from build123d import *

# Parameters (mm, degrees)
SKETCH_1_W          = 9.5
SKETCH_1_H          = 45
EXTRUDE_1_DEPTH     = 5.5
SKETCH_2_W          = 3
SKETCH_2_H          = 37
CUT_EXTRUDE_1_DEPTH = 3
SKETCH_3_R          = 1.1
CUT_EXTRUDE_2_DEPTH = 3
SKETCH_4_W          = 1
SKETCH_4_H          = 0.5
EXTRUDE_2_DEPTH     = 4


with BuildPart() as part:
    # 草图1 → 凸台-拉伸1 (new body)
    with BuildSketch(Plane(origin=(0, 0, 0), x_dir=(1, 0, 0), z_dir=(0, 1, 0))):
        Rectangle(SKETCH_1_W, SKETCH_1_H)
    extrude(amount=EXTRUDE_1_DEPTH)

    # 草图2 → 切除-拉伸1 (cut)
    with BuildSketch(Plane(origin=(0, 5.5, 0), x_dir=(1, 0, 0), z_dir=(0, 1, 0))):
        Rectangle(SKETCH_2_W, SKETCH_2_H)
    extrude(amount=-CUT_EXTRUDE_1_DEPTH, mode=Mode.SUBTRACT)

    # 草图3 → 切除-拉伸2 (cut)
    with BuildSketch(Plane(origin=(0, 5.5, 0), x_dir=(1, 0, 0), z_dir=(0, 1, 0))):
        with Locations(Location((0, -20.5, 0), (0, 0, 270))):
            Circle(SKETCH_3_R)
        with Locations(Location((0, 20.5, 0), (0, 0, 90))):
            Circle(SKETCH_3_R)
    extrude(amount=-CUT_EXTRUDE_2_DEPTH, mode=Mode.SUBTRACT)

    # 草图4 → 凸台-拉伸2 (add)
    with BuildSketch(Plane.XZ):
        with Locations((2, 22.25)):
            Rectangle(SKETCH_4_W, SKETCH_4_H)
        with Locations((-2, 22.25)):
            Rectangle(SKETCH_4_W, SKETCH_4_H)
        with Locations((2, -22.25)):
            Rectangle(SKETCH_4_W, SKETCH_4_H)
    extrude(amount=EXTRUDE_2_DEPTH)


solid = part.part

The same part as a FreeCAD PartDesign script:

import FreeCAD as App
import Part
import Sketcher
Q = App.Units.Quantity


def add_polygon(sketch, points):
    """Adds a closed chain of lines whose ends are joined by coincident constraints."""
    first, n = sketch.GeometryCount, len(points)
    for a, b in zip(points, points[1:] + points[:1]):
        sketch.addGeometry(Part.LineSegment(App.Vector(*a, 0), App.Vector(*b, 0)), False)
    for i in range(n):
        sketch.addConstraint(Sketcher.Constraint("Coincident", first + i, 2, first + (i + 1) % n, 1))

doc = App.newDocument("Part")
body = doc.addObject("PartDesign::Body", "Body")

sketch1 = doc.addObject("Sketcher::SketchObject", "Sketch")
body.addObject(sketch1)
sketch1.AttachmentSupport = (doc.XZ_Plane, [""])
sketch1.MapMode = "FlatFace"
add_polygon(sketch1, [(-5, -22), (-5, 22), (5, 22), (5, -22)])
sketch1.addConstraint(Sketcher.Constraint("Vertical", 0))
sketch1.addConstraint(Sketcher.Constraint("Horizontal", 1))
sketch1.addConstraint(Sketcher.Constraint("Vertical", 2))
sketch1.addConstraint(Sketcher.Constraint("Horizontal", 3))
sketch1.addConstraint(Sketcher.Constraint("Symmetric", 0, 2, 2, 2, -1, 1))
sketch1.addConstraint(Sketcher.Constraint("DistanceY", 0, 1, 0, 2, Q("45 mm")))
sketch1.addConstraint(Sketcher.Constraint("DistanceX", 1, 1, 1, 2, Q("9.5 mm")))
pad1 = doc.addObject("PartDesign::Pad", "Pad")
body.addObject(pad1)
pad1.Profile = sketch1
pad1.Length = 5.5
pad1.Reversed = True

sketch2 = doc.addObject("Sketcher::SketchObject", "Sketch001")
body.addObject(sketch2)
sketch2.AttachmentSupport = (doc.XZ_Plane, [""])
sketch2.MapMode = "FlatFace"
sketch2.AttachmentOffset = App.Placement(App.Vector(0, 0, -5.5), App.Rotation())
add_polygon(sketch2, [(-1.5, -18.5), (-1.5, 18.5), (1.5, 18.5), (1.5, -18.5)])
sketch2.addConstraint(Sketcher.Constraint("Vertical", 0))
sketch2.addConstraint(Sketcher.Constraint("Horizontal", 1))
sketch2.addConstraint(Sketcher.Constraint("Vertical", 2))
sketch2.addConstraint(Sketcher.Constraint("Horizontal", 3))
sketch2.addConstraint(Sketcher.Constraint("Symmetric", 0, 2, 2, 2, -1, 1))
sketch2.addConstraint(Sketcher.Constraint("DistanceX", 1, 1, 1, 2, Q("3 mm")))
sketch2.addConstraint(Sketcher.Constraint("DistanceY", 0, 1, 0, 2, Q("37 mm")))
pocket1 = doc.addObject("PartDesign::Pocket", "Pocket")
body.addObject(pocket1)
pocket1.Profile = sketch2
pocket1.Length = 3
pocket1.Reversed = True

sketch3 = doc.addObject("Sketcher::SketchObject", "Sketch002")
body.addObject(sketch3)
sketch3.AttachmentSupport = (doc.XZ_Plane, [""])
sketch3.MapMode = "FlatFace"
sketch3.AttachmentOffset = App.Placement(App.Vector(0, 0, -5.5), App.Rotation())
sketch3.addGeometry(Part.Circle(App.Vector(0, 20.5, 0), App.Vector(0, 0, 1), 1.1), False)
sketch3.addGeometry(Part.Circle(App.Vector(0, -20.5, 0), App.Vector(0, 0, 1), 1.1), False)
sketch3.addConstraint(Sketcher.Constraint("Equal", 0, 1))
sketch3.addConstraint(Sketcher.Constraint("Symmetric", 0, 3, 1, 3, -1, 1))
sketch3.addConstraint(Sketcher.Constraint("PointOnObject", 0, 3, -2))
sketch3.addConstraint(Sketcher.Constraint("Diameter", 0, Q("2.2 mm")))
sketch3.addConstraint(Sketcher.Constraint("DistanceY", 1, 3, 0, 3, Q("41 mm")))
pocket2 = doc.addObject("PartDesign::Pocket", "Pocket001")
body.addObject(pocket2)
pocket2.Profile = sketch3
pocket2.Length = 3
pocket2.Reversed = True

sketch4 = doc.addObject("Sketcher::SketchObject", "Sketch003")
body.addObject(sketch4)
sketch4.AttachmentSupport = (doc.XZ_Plane, [""])
sketch4.MapMode = "FlatFace"
add_polygon(sketch4, [(1.5, 22.5), (1.5, 22), (2.5, 22), (2.5, 22.5)])
add_polygon(sketch4, [(-2.5, 22.5), (-2.5, 22), (-1.5, 22), (-1.5, 22.5)])
add_polygon(sketch4, [(1.5, -22), (1.5, -22.5), (2.5, -22.5), (2.5, -22)])
sketch4.addConstraint(Sketcher.Constraint("Vertical", 0))
sketch4.addConstraint(Sketcher.Constraint("Horizontal", 1))
sketch4.addConstraint(Sketcher.Constraint("Vertical", 2))
sketch4.addConstraint(Sketcher.Constraint("Horizontal", 3))
sketch4.addConstraint(Sketcher.Constraint("Vertical", 4))
sketch4.addConstraint(Sketcher.Constraint("Horizontal", 5))
sketch4.addConstraint(Sketcher.Constraint("Vertical", 6))
sketch4.addConstraint(Sketcher.Constraint("Horizontal", 7))
sketch4.addConstraint(Sketcher.Constraint("Vertical", 8))
sketch4.addConstraint(Sketcher.Constraint("Horizontal", 9))
sketch4.addConstraint(Sketcher.Constraint("Vertical", 10))
sketch4.addConstraint(Sketcher.Constraint("Horizontal", 11))
sketch4.addConstraint(Sketcher.Constraint("Symmetric", 6, 2, 8, 2, -1, 1))
sketch4.addConstraint(Sketcher.Constraint("Symmetric", 4, 2, 10, 2, -1, 1))
sketch4.addConstraint(Sketcher.Constraint("Symmetric", 1, 2, 4, 2, -2))
sketch4.addConstraint(Sketcher.Constraint("Symmetric", 3, 2, 6, 2, -2))
sketch4.addConstraint(Sketcher.Constraint("DistanceX", 1, 1, 1, 2, Q("1 mm")))
sketch4.addConstraint(Sketcher.Constraint("DistanceY", 0, 2, 0, 1, Q("0.5 mm")))
sketch4.addConstraint(Sketcher.Constraint("DistanceY", -1, 1, 0, 2, Q("22 mm")))
sketch4.addConstraint(Sketcher.Constraint("DistanceX", 4, 2, 0, 2, Q("4 mm")))
pad2 = doc.addObject("PartDesign::Pad", "Pad001")
body.addObject(pad2)
pad2.Profile = sketch4
pad2.Length = 4

doc.recompute()
